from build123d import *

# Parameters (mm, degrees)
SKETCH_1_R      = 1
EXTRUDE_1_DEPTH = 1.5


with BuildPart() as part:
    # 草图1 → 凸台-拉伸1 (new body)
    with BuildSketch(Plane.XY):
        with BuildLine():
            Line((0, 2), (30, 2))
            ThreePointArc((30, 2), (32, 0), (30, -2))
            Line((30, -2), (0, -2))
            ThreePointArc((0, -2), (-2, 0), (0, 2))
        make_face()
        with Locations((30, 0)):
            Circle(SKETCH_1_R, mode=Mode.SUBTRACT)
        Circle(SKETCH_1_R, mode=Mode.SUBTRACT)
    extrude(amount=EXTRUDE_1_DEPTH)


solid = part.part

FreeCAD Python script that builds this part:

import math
import FreeCAD as App
import Part
import Sketcher

doc = App.newDocument("Part")
body = doc.addObject("PartDesign::Body", "Body")

sketch1 = doc.addObject("Sketcher::SketchObject", "Sketch")
body.addObject(sketch1)
sketch1.AttachmentSupport = (doc.XY_Plane, [""])
sketch1.MapMode = "FlatFace"
sketch1.addGeometry([
    Part.LineSegment(App.Vector(30, 2, 0), App.Vector(0, 2, 0)),
    Part.ArcOfCircle(Part.Circle(App.Vector(0, 0, 0), App.Vector(0, 0, 1), 2), math.radians(90), math.radians(270)),
    Part.LineSegment(App.Vector(0, -2, 0), App.Vector(30, -2, 0)),
    Part.ArcOfCircle(Part.Circle(App.Vector(30, 0, 0), App.Vector(0, 0, 1), 2), math.radians(-90), math.radians(90)),
    Part.Circle(App.Vector(30, 0, 0), App.Vector(0, 0, 1), 1),
    Part.Circle(App.Vector(0, 0, 0), App.Vector(0, 0, 1), 1),
], False)
sketch1.addConstraint([
    Sketcher.Constraint("Tangent", 0, 2, 1, 1),
    Sketcher.Constraint("Tangent", 1, 2, 2, 1),
    Sketcher.Constraint("Tangent", 2, 2, 3, 1),
    Sketcher.Constraint("Tangent", 3, 2, 0, 1),
    Sketcher.Constraint("Horizontal", 0),
    Sketcher.Constraint("Horizontal", 2),
    Sketcher.Constraint("Coincident", 1, 3, -1, 1),
    Sketcher.Constraint("Coincident", 5, 3, -1, 1),
    Sketcher.Constraint("Coincident", 4, 3, 3, 3),
    Sketcher.Constraint("Equal", 4, 5),
    Sketcher.Constraint("Diameter", 4, 2.0),
    Sketcher.Constraint("Radius", 1, 2.0),
    Sketcher.Constraint("DistanceX", 0, 2, 0, 1, 30.0),
])
pad1 = doc.addObject("PartDesign::Pad", "Pad")
body.addObject(pad1)
pad1.Profile = sketch1
pad1.Length = 1.5

doc.recompute()
